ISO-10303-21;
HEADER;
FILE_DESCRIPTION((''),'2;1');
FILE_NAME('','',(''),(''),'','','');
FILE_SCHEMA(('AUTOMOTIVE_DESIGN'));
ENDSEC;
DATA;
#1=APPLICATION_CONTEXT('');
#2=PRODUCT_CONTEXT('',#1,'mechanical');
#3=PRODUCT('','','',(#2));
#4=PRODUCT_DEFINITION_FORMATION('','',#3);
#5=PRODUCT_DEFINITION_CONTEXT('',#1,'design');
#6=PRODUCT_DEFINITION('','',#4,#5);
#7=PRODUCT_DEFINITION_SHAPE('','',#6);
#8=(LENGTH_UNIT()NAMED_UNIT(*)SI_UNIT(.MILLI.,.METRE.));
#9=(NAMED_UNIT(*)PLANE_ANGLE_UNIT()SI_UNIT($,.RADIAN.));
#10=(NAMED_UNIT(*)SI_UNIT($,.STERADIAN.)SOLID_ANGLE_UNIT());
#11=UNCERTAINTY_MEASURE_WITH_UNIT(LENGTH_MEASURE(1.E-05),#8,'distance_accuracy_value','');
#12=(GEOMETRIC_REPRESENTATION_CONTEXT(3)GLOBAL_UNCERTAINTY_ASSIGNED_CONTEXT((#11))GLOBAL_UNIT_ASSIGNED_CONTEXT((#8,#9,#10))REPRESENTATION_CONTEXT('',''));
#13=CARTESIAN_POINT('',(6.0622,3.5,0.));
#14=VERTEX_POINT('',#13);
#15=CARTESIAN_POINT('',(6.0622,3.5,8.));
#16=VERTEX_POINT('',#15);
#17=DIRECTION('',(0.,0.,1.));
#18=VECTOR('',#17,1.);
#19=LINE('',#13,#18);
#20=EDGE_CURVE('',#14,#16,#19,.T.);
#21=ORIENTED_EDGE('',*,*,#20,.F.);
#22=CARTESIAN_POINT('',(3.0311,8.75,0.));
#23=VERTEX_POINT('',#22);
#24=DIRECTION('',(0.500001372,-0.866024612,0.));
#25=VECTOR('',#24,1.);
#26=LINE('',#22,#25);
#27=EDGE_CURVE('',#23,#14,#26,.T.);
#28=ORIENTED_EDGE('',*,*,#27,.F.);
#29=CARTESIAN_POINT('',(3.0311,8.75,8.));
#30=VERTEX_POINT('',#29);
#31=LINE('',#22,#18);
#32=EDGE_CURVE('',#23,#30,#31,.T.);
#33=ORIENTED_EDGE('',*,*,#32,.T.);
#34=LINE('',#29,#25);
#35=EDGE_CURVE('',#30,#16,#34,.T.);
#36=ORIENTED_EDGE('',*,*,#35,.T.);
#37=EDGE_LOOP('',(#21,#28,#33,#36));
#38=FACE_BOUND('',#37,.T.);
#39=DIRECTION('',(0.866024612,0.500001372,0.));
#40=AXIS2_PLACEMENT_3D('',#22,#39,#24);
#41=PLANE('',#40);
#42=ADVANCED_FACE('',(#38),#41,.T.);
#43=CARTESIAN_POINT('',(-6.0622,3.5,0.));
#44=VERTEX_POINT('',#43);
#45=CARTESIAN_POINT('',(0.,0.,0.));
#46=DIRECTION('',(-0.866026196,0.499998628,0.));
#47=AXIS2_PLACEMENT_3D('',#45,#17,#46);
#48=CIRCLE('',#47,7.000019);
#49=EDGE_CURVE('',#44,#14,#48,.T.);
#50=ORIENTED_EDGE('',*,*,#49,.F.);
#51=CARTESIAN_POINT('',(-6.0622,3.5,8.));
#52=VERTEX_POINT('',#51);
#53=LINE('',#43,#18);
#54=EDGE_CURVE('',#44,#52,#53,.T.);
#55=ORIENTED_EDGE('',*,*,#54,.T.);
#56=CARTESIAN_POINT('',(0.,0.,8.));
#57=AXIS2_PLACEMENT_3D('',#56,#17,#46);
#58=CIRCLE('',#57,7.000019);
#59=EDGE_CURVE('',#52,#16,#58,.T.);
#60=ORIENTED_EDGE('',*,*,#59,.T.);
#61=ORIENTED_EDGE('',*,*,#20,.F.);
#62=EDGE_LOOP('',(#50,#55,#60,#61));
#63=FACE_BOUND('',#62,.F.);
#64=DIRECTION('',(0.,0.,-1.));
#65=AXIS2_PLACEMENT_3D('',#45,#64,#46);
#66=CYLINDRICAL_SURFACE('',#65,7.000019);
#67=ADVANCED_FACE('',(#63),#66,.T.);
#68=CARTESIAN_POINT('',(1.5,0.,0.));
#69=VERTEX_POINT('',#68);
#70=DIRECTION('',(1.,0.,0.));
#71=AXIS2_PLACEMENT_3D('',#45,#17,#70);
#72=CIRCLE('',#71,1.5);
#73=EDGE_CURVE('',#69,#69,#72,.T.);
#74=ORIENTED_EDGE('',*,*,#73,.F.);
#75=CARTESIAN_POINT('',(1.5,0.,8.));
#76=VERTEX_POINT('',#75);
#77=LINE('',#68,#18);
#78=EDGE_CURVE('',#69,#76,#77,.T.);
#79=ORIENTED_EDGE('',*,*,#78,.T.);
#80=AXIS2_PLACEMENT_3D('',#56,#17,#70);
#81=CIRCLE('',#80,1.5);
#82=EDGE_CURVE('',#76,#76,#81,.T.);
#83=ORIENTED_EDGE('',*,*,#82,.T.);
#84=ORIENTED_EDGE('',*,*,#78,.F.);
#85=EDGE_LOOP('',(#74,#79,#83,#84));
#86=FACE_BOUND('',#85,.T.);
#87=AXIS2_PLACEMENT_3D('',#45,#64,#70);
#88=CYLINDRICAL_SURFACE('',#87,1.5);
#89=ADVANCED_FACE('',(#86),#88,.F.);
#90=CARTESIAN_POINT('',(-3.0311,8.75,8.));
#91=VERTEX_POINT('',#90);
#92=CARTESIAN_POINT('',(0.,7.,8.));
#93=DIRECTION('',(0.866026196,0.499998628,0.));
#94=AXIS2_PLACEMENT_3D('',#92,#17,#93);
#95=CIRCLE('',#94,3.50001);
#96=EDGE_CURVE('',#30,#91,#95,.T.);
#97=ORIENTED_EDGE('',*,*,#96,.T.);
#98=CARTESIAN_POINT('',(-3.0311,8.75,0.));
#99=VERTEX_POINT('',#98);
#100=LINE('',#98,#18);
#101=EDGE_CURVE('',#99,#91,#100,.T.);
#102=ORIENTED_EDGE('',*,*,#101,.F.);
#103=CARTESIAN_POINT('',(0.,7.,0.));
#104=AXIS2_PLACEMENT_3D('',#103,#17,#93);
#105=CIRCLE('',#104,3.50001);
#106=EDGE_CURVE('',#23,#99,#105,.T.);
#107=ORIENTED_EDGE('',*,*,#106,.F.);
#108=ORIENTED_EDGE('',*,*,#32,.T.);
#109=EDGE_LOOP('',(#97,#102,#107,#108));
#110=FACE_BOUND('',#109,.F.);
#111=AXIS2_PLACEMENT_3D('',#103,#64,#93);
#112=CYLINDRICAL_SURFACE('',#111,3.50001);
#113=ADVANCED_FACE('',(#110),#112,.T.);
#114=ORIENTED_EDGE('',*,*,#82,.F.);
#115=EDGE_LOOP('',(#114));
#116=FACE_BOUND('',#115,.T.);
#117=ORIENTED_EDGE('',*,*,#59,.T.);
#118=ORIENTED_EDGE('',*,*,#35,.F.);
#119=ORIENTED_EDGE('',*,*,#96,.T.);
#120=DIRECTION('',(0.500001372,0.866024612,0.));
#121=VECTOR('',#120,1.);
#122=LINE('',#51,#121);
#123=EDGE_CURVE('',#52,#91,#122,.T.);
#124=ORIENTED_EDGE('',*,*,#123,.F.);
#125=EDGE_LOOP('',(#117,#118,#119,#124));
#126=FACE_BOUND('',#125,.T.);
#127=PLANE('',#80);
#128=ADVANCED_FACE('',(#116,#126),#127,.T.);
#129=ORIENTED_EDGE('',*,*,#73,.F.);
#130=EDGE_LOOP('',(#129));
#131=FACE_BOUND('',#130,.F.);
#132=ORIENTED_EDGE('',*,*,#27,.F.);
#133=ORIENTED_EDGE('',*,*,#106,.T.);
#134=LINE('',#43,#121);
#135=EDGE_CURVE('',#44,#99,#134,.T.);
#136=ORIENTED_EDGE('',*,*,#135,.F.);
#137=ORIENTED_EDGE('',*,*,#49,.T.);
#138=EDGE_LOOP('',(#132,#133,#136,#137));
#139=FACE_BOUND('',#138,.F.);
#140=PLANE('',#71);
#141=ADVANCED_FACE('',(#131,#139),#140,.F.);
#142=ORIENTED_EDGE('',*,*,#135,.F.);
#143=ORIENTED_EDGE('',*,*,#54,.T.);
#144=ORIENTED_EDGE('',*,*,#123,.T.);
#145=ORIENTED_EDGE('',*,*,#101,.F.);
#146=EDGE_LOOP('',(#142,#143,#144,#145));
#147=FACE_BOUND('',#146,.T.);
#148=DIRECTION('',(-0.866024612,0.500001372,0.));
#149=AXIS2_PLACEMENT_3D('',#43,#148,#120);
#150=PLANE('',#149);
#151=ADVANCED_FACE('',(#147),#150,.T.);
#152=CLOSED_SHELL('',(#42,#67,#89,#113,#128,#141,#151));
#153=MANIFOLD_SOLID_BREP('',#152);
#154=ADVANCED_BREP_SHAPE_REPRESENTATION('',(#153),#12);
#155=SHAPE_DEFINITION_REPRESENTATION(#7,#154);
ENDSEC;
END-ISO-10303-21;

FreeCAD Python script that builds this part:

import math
import FreeCAD as App
import Part
import Sketcher
from FreeCAD import Vector
Q = App.Units.Quantity

doc = App.newDocument("Part")
body = doc.addObject("PartDesign::Body", "Body")

sketch1 = body.newObject("Sketcher::SketchObject", "Sketch")
sketch1.AttachmentSupport = (doc.getObject("XY_Plane"), [""])
sketch1.MapMode = "FlatFace"
sketch1.addGeometry([
    Part.LineSegment(Vector(-3, 8.8, 0), Vector(-6.1, 3.5, 0)),
    Part.ArcOfCircle(Part.Circle(Vector(0, 0, 0), Vector(0, 0, 1), 7), math.radians(150), math.radians(390)),
    Part.LineSegment(Vector(6.1, 3.5, 0), Vector(3, 8.8, 0)),
    Part.ArcOfCircle(Part.Circle(Vector(0, 7, 0), Vector(0, 0, 1), 3.5), math.radians(30), math.radians(150)),
    Part.Circle(Vector(0, 0, 0), Vector(0, 0, 1), 1.5),
], False)
sketch1.addConstraint([
    Sketcher.Constraint("Tangent", 0, 2, 1, 1),
    Sketcher.Constraint("Tangent", 1, 2, 2, 1),
    Sketcher.Constraint("Tangent", 2, 2, 3, 1),
    Sketcher.Constraint("Tangent", 3, 2, 0, 1),
    Sketcher.Constraint("Coincident", 1, 3, -1, 1),
    Sketcher.Constraint("Coincident", 4, 3, -1, 1),
    Sketcher.Constraint("PointOnObject", 3, 3, -2),
    Sketcher.Constraint("Diameter", 4, Q("3 mm")),
    Sketcher.Constraint("Radius", 1, Q("7 mm")),
    Sketcher.Constraint("Radius", 3, Q("3.5 mm")),
    Sketcher.Constraint("DistanceY", -1, 1, 3, 3, Q("7 mm")),
])
pad1 = body.newObject("PartDesign::Pad", "Pad")
pad1.Profile = sketch1
pad1.Length = 8

doc.recompute()
